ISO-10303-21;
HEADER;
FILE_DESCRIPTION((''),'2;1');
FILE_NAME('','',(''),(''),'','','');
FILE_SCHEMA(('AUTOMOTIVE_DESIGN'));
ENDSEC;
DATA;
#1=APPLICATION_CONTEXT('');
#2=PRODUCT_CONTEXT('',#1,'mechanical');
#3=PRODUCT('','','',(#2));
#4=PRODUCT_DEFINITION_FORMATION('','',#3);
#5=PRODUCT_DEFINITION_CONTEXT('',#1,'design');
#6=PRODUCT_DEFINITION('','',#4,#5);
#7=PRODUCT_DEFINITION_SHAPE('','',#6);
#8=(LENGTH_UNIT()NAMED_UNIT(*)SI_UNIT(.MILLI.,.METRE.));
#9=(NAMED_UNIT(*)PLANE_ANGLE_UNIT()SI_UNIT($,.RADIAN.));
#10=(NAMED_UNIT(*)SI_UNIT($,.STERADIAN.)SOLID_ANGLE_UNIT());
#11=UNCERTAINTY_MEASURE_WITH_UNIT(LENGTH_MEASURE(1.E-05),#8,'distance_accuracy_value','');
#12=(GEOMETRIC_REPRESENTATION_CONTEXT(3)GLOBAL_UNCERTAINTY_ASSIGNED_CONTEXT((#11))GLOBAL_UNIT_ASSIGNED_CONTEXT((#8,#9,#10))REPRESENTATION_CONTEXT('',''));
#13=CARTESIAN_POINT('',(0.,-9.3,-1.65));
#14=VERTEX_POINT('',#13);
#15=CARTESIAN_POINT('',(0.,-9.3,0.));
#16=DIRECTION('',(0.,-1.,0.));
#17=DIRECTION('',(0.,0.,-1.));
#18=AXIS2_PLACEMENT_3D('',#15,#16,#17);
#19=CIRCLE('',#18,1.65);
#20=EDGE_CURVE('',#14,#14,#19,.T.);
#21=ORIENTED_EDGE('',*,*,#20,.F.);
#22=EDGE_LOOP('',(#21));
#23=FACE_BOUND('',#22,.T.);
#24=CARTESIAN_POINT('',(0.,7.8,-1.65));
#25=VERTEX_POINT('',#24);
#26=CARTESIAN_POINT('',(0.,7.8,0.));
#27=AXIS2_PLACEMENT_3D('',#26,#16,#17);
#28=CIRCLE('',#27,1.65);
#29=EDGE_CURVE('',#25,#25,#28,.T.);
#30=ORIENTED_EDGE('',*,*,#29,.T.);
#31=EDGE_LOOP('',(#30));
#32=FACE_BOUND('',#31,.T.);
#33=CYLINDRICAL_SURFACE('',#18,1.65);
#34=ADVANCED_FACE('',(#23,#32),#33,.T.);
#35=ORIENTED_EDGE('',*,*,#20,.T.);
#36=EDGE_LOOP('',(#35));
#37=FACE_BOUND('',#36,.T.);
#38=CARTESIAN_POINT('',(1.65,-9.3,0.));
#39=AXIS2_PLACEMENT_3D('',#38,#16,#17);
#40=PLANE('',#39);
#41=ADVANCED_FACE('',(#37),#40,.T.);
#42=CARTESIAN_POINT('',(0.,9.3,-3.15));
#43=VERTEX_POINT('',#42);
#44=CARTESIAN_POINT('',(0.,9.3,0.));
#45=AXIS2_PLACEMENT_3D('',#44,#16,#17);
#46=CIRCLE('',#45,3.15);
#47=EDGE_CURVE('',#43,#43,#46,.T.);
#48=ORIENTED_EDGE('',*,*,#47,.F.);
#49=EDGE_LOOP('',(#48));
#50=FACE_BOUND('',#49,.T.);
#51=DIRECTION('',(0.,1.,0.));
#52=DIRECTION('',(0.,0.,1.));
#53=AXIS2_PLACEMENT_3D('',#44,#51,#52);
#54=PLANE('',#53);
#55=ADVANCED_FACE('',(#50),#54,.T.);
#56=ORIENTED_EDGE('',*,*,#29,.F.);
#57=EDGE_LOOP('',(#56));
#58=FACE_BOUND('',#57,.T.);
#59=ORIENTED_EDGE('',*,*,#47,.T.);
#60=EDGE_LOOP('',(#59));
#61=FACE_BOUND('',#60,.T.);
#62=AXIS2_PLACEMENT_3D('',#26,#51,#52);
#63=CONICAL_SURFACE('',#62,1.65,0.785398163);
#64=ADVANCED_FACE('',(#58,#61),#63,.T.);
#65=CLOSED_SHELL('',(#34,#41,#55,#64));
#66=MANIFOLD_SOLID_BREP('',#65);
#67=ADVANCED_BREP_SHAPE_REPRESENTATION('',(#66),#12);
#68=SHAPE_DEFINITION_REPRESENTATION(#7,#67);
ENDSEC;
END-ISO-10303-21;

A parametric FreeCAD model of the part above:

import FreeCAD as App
import Part
import Sketcher
Q = App.Units.Quantity


def add_polygon(sketch, points):
    """Adds a closed chain of lines whose ends are joined by coincident constraints."""
    first, n = sketch.GeometryCount, len(points)
    for a, b in zip(points, points[1:] + points[:1]):
        sketch.addGeometry(Part.LineSegment(App.Vector(*a, 0), App.Vector(*b, 0)), False)
    for i in range(n):
        sketch.addConstraint(Sketcher.Constraint("Coincident", first + i, 2, first + (i + 1) % n, 1))

doc = App.newDocument("Part")
body = doc.addObject("PartDesign::Body", "Body")

# Sketch on XY plane
sketch1 = body.newObject("Sketcher::SketchObject", "Sketch")
sketch1.AttachmentSupport = (doc.getObject("XY_Plane"), [""])
sketch1.MapMode = "FlatFace"
add_polygon(sketch1, [(0, 9.3), (0, -9.3), (1.6, -9.3), (1.6, 7.8), (3.1, 9.3)])  # lines 0-4
sketch1.addConstraint(Sketcher.Constraint("Vertical", 0))
sketch1.addConstraint(Sketcher.Constraint("Horizontal", 1))
sketch1.addConstraint(Sketcher.Constraint("Vertical", 2))
sketch1.addConstraint(Sketcher.Constraint("Horizontal", 4))
sketch1.addConstraint(Sketcher.Constraint("Symmetric", 0, 2, 4, 2, -1, 1))
sketch1.addConstraint(Sketcher.Constraint("Angle", 3, Q("45 deg")))
sketch1.addConstraint(Sketcher.Constraint("DistanceY", 0, 2, 0, 1, Q("18.6 mm")))
sketch1.addConstraint(Sketcher.Constraint("DistanceY", 2, 1, 2, 2, Q("17.1 mm")))
sketch1.addConstraint(Sketcher.Constraint("DistanceX", 1, 1, 1, 2, Q("1.65 mm")))
revolution = body.newObject("PartDesign::Revolution", "Revolution")
revolution.Profile = sketch1
revolution.ReferenceAxis = (sketch1, ["V_Axis"])
revolution.Angle = 360

doc.recompute()
